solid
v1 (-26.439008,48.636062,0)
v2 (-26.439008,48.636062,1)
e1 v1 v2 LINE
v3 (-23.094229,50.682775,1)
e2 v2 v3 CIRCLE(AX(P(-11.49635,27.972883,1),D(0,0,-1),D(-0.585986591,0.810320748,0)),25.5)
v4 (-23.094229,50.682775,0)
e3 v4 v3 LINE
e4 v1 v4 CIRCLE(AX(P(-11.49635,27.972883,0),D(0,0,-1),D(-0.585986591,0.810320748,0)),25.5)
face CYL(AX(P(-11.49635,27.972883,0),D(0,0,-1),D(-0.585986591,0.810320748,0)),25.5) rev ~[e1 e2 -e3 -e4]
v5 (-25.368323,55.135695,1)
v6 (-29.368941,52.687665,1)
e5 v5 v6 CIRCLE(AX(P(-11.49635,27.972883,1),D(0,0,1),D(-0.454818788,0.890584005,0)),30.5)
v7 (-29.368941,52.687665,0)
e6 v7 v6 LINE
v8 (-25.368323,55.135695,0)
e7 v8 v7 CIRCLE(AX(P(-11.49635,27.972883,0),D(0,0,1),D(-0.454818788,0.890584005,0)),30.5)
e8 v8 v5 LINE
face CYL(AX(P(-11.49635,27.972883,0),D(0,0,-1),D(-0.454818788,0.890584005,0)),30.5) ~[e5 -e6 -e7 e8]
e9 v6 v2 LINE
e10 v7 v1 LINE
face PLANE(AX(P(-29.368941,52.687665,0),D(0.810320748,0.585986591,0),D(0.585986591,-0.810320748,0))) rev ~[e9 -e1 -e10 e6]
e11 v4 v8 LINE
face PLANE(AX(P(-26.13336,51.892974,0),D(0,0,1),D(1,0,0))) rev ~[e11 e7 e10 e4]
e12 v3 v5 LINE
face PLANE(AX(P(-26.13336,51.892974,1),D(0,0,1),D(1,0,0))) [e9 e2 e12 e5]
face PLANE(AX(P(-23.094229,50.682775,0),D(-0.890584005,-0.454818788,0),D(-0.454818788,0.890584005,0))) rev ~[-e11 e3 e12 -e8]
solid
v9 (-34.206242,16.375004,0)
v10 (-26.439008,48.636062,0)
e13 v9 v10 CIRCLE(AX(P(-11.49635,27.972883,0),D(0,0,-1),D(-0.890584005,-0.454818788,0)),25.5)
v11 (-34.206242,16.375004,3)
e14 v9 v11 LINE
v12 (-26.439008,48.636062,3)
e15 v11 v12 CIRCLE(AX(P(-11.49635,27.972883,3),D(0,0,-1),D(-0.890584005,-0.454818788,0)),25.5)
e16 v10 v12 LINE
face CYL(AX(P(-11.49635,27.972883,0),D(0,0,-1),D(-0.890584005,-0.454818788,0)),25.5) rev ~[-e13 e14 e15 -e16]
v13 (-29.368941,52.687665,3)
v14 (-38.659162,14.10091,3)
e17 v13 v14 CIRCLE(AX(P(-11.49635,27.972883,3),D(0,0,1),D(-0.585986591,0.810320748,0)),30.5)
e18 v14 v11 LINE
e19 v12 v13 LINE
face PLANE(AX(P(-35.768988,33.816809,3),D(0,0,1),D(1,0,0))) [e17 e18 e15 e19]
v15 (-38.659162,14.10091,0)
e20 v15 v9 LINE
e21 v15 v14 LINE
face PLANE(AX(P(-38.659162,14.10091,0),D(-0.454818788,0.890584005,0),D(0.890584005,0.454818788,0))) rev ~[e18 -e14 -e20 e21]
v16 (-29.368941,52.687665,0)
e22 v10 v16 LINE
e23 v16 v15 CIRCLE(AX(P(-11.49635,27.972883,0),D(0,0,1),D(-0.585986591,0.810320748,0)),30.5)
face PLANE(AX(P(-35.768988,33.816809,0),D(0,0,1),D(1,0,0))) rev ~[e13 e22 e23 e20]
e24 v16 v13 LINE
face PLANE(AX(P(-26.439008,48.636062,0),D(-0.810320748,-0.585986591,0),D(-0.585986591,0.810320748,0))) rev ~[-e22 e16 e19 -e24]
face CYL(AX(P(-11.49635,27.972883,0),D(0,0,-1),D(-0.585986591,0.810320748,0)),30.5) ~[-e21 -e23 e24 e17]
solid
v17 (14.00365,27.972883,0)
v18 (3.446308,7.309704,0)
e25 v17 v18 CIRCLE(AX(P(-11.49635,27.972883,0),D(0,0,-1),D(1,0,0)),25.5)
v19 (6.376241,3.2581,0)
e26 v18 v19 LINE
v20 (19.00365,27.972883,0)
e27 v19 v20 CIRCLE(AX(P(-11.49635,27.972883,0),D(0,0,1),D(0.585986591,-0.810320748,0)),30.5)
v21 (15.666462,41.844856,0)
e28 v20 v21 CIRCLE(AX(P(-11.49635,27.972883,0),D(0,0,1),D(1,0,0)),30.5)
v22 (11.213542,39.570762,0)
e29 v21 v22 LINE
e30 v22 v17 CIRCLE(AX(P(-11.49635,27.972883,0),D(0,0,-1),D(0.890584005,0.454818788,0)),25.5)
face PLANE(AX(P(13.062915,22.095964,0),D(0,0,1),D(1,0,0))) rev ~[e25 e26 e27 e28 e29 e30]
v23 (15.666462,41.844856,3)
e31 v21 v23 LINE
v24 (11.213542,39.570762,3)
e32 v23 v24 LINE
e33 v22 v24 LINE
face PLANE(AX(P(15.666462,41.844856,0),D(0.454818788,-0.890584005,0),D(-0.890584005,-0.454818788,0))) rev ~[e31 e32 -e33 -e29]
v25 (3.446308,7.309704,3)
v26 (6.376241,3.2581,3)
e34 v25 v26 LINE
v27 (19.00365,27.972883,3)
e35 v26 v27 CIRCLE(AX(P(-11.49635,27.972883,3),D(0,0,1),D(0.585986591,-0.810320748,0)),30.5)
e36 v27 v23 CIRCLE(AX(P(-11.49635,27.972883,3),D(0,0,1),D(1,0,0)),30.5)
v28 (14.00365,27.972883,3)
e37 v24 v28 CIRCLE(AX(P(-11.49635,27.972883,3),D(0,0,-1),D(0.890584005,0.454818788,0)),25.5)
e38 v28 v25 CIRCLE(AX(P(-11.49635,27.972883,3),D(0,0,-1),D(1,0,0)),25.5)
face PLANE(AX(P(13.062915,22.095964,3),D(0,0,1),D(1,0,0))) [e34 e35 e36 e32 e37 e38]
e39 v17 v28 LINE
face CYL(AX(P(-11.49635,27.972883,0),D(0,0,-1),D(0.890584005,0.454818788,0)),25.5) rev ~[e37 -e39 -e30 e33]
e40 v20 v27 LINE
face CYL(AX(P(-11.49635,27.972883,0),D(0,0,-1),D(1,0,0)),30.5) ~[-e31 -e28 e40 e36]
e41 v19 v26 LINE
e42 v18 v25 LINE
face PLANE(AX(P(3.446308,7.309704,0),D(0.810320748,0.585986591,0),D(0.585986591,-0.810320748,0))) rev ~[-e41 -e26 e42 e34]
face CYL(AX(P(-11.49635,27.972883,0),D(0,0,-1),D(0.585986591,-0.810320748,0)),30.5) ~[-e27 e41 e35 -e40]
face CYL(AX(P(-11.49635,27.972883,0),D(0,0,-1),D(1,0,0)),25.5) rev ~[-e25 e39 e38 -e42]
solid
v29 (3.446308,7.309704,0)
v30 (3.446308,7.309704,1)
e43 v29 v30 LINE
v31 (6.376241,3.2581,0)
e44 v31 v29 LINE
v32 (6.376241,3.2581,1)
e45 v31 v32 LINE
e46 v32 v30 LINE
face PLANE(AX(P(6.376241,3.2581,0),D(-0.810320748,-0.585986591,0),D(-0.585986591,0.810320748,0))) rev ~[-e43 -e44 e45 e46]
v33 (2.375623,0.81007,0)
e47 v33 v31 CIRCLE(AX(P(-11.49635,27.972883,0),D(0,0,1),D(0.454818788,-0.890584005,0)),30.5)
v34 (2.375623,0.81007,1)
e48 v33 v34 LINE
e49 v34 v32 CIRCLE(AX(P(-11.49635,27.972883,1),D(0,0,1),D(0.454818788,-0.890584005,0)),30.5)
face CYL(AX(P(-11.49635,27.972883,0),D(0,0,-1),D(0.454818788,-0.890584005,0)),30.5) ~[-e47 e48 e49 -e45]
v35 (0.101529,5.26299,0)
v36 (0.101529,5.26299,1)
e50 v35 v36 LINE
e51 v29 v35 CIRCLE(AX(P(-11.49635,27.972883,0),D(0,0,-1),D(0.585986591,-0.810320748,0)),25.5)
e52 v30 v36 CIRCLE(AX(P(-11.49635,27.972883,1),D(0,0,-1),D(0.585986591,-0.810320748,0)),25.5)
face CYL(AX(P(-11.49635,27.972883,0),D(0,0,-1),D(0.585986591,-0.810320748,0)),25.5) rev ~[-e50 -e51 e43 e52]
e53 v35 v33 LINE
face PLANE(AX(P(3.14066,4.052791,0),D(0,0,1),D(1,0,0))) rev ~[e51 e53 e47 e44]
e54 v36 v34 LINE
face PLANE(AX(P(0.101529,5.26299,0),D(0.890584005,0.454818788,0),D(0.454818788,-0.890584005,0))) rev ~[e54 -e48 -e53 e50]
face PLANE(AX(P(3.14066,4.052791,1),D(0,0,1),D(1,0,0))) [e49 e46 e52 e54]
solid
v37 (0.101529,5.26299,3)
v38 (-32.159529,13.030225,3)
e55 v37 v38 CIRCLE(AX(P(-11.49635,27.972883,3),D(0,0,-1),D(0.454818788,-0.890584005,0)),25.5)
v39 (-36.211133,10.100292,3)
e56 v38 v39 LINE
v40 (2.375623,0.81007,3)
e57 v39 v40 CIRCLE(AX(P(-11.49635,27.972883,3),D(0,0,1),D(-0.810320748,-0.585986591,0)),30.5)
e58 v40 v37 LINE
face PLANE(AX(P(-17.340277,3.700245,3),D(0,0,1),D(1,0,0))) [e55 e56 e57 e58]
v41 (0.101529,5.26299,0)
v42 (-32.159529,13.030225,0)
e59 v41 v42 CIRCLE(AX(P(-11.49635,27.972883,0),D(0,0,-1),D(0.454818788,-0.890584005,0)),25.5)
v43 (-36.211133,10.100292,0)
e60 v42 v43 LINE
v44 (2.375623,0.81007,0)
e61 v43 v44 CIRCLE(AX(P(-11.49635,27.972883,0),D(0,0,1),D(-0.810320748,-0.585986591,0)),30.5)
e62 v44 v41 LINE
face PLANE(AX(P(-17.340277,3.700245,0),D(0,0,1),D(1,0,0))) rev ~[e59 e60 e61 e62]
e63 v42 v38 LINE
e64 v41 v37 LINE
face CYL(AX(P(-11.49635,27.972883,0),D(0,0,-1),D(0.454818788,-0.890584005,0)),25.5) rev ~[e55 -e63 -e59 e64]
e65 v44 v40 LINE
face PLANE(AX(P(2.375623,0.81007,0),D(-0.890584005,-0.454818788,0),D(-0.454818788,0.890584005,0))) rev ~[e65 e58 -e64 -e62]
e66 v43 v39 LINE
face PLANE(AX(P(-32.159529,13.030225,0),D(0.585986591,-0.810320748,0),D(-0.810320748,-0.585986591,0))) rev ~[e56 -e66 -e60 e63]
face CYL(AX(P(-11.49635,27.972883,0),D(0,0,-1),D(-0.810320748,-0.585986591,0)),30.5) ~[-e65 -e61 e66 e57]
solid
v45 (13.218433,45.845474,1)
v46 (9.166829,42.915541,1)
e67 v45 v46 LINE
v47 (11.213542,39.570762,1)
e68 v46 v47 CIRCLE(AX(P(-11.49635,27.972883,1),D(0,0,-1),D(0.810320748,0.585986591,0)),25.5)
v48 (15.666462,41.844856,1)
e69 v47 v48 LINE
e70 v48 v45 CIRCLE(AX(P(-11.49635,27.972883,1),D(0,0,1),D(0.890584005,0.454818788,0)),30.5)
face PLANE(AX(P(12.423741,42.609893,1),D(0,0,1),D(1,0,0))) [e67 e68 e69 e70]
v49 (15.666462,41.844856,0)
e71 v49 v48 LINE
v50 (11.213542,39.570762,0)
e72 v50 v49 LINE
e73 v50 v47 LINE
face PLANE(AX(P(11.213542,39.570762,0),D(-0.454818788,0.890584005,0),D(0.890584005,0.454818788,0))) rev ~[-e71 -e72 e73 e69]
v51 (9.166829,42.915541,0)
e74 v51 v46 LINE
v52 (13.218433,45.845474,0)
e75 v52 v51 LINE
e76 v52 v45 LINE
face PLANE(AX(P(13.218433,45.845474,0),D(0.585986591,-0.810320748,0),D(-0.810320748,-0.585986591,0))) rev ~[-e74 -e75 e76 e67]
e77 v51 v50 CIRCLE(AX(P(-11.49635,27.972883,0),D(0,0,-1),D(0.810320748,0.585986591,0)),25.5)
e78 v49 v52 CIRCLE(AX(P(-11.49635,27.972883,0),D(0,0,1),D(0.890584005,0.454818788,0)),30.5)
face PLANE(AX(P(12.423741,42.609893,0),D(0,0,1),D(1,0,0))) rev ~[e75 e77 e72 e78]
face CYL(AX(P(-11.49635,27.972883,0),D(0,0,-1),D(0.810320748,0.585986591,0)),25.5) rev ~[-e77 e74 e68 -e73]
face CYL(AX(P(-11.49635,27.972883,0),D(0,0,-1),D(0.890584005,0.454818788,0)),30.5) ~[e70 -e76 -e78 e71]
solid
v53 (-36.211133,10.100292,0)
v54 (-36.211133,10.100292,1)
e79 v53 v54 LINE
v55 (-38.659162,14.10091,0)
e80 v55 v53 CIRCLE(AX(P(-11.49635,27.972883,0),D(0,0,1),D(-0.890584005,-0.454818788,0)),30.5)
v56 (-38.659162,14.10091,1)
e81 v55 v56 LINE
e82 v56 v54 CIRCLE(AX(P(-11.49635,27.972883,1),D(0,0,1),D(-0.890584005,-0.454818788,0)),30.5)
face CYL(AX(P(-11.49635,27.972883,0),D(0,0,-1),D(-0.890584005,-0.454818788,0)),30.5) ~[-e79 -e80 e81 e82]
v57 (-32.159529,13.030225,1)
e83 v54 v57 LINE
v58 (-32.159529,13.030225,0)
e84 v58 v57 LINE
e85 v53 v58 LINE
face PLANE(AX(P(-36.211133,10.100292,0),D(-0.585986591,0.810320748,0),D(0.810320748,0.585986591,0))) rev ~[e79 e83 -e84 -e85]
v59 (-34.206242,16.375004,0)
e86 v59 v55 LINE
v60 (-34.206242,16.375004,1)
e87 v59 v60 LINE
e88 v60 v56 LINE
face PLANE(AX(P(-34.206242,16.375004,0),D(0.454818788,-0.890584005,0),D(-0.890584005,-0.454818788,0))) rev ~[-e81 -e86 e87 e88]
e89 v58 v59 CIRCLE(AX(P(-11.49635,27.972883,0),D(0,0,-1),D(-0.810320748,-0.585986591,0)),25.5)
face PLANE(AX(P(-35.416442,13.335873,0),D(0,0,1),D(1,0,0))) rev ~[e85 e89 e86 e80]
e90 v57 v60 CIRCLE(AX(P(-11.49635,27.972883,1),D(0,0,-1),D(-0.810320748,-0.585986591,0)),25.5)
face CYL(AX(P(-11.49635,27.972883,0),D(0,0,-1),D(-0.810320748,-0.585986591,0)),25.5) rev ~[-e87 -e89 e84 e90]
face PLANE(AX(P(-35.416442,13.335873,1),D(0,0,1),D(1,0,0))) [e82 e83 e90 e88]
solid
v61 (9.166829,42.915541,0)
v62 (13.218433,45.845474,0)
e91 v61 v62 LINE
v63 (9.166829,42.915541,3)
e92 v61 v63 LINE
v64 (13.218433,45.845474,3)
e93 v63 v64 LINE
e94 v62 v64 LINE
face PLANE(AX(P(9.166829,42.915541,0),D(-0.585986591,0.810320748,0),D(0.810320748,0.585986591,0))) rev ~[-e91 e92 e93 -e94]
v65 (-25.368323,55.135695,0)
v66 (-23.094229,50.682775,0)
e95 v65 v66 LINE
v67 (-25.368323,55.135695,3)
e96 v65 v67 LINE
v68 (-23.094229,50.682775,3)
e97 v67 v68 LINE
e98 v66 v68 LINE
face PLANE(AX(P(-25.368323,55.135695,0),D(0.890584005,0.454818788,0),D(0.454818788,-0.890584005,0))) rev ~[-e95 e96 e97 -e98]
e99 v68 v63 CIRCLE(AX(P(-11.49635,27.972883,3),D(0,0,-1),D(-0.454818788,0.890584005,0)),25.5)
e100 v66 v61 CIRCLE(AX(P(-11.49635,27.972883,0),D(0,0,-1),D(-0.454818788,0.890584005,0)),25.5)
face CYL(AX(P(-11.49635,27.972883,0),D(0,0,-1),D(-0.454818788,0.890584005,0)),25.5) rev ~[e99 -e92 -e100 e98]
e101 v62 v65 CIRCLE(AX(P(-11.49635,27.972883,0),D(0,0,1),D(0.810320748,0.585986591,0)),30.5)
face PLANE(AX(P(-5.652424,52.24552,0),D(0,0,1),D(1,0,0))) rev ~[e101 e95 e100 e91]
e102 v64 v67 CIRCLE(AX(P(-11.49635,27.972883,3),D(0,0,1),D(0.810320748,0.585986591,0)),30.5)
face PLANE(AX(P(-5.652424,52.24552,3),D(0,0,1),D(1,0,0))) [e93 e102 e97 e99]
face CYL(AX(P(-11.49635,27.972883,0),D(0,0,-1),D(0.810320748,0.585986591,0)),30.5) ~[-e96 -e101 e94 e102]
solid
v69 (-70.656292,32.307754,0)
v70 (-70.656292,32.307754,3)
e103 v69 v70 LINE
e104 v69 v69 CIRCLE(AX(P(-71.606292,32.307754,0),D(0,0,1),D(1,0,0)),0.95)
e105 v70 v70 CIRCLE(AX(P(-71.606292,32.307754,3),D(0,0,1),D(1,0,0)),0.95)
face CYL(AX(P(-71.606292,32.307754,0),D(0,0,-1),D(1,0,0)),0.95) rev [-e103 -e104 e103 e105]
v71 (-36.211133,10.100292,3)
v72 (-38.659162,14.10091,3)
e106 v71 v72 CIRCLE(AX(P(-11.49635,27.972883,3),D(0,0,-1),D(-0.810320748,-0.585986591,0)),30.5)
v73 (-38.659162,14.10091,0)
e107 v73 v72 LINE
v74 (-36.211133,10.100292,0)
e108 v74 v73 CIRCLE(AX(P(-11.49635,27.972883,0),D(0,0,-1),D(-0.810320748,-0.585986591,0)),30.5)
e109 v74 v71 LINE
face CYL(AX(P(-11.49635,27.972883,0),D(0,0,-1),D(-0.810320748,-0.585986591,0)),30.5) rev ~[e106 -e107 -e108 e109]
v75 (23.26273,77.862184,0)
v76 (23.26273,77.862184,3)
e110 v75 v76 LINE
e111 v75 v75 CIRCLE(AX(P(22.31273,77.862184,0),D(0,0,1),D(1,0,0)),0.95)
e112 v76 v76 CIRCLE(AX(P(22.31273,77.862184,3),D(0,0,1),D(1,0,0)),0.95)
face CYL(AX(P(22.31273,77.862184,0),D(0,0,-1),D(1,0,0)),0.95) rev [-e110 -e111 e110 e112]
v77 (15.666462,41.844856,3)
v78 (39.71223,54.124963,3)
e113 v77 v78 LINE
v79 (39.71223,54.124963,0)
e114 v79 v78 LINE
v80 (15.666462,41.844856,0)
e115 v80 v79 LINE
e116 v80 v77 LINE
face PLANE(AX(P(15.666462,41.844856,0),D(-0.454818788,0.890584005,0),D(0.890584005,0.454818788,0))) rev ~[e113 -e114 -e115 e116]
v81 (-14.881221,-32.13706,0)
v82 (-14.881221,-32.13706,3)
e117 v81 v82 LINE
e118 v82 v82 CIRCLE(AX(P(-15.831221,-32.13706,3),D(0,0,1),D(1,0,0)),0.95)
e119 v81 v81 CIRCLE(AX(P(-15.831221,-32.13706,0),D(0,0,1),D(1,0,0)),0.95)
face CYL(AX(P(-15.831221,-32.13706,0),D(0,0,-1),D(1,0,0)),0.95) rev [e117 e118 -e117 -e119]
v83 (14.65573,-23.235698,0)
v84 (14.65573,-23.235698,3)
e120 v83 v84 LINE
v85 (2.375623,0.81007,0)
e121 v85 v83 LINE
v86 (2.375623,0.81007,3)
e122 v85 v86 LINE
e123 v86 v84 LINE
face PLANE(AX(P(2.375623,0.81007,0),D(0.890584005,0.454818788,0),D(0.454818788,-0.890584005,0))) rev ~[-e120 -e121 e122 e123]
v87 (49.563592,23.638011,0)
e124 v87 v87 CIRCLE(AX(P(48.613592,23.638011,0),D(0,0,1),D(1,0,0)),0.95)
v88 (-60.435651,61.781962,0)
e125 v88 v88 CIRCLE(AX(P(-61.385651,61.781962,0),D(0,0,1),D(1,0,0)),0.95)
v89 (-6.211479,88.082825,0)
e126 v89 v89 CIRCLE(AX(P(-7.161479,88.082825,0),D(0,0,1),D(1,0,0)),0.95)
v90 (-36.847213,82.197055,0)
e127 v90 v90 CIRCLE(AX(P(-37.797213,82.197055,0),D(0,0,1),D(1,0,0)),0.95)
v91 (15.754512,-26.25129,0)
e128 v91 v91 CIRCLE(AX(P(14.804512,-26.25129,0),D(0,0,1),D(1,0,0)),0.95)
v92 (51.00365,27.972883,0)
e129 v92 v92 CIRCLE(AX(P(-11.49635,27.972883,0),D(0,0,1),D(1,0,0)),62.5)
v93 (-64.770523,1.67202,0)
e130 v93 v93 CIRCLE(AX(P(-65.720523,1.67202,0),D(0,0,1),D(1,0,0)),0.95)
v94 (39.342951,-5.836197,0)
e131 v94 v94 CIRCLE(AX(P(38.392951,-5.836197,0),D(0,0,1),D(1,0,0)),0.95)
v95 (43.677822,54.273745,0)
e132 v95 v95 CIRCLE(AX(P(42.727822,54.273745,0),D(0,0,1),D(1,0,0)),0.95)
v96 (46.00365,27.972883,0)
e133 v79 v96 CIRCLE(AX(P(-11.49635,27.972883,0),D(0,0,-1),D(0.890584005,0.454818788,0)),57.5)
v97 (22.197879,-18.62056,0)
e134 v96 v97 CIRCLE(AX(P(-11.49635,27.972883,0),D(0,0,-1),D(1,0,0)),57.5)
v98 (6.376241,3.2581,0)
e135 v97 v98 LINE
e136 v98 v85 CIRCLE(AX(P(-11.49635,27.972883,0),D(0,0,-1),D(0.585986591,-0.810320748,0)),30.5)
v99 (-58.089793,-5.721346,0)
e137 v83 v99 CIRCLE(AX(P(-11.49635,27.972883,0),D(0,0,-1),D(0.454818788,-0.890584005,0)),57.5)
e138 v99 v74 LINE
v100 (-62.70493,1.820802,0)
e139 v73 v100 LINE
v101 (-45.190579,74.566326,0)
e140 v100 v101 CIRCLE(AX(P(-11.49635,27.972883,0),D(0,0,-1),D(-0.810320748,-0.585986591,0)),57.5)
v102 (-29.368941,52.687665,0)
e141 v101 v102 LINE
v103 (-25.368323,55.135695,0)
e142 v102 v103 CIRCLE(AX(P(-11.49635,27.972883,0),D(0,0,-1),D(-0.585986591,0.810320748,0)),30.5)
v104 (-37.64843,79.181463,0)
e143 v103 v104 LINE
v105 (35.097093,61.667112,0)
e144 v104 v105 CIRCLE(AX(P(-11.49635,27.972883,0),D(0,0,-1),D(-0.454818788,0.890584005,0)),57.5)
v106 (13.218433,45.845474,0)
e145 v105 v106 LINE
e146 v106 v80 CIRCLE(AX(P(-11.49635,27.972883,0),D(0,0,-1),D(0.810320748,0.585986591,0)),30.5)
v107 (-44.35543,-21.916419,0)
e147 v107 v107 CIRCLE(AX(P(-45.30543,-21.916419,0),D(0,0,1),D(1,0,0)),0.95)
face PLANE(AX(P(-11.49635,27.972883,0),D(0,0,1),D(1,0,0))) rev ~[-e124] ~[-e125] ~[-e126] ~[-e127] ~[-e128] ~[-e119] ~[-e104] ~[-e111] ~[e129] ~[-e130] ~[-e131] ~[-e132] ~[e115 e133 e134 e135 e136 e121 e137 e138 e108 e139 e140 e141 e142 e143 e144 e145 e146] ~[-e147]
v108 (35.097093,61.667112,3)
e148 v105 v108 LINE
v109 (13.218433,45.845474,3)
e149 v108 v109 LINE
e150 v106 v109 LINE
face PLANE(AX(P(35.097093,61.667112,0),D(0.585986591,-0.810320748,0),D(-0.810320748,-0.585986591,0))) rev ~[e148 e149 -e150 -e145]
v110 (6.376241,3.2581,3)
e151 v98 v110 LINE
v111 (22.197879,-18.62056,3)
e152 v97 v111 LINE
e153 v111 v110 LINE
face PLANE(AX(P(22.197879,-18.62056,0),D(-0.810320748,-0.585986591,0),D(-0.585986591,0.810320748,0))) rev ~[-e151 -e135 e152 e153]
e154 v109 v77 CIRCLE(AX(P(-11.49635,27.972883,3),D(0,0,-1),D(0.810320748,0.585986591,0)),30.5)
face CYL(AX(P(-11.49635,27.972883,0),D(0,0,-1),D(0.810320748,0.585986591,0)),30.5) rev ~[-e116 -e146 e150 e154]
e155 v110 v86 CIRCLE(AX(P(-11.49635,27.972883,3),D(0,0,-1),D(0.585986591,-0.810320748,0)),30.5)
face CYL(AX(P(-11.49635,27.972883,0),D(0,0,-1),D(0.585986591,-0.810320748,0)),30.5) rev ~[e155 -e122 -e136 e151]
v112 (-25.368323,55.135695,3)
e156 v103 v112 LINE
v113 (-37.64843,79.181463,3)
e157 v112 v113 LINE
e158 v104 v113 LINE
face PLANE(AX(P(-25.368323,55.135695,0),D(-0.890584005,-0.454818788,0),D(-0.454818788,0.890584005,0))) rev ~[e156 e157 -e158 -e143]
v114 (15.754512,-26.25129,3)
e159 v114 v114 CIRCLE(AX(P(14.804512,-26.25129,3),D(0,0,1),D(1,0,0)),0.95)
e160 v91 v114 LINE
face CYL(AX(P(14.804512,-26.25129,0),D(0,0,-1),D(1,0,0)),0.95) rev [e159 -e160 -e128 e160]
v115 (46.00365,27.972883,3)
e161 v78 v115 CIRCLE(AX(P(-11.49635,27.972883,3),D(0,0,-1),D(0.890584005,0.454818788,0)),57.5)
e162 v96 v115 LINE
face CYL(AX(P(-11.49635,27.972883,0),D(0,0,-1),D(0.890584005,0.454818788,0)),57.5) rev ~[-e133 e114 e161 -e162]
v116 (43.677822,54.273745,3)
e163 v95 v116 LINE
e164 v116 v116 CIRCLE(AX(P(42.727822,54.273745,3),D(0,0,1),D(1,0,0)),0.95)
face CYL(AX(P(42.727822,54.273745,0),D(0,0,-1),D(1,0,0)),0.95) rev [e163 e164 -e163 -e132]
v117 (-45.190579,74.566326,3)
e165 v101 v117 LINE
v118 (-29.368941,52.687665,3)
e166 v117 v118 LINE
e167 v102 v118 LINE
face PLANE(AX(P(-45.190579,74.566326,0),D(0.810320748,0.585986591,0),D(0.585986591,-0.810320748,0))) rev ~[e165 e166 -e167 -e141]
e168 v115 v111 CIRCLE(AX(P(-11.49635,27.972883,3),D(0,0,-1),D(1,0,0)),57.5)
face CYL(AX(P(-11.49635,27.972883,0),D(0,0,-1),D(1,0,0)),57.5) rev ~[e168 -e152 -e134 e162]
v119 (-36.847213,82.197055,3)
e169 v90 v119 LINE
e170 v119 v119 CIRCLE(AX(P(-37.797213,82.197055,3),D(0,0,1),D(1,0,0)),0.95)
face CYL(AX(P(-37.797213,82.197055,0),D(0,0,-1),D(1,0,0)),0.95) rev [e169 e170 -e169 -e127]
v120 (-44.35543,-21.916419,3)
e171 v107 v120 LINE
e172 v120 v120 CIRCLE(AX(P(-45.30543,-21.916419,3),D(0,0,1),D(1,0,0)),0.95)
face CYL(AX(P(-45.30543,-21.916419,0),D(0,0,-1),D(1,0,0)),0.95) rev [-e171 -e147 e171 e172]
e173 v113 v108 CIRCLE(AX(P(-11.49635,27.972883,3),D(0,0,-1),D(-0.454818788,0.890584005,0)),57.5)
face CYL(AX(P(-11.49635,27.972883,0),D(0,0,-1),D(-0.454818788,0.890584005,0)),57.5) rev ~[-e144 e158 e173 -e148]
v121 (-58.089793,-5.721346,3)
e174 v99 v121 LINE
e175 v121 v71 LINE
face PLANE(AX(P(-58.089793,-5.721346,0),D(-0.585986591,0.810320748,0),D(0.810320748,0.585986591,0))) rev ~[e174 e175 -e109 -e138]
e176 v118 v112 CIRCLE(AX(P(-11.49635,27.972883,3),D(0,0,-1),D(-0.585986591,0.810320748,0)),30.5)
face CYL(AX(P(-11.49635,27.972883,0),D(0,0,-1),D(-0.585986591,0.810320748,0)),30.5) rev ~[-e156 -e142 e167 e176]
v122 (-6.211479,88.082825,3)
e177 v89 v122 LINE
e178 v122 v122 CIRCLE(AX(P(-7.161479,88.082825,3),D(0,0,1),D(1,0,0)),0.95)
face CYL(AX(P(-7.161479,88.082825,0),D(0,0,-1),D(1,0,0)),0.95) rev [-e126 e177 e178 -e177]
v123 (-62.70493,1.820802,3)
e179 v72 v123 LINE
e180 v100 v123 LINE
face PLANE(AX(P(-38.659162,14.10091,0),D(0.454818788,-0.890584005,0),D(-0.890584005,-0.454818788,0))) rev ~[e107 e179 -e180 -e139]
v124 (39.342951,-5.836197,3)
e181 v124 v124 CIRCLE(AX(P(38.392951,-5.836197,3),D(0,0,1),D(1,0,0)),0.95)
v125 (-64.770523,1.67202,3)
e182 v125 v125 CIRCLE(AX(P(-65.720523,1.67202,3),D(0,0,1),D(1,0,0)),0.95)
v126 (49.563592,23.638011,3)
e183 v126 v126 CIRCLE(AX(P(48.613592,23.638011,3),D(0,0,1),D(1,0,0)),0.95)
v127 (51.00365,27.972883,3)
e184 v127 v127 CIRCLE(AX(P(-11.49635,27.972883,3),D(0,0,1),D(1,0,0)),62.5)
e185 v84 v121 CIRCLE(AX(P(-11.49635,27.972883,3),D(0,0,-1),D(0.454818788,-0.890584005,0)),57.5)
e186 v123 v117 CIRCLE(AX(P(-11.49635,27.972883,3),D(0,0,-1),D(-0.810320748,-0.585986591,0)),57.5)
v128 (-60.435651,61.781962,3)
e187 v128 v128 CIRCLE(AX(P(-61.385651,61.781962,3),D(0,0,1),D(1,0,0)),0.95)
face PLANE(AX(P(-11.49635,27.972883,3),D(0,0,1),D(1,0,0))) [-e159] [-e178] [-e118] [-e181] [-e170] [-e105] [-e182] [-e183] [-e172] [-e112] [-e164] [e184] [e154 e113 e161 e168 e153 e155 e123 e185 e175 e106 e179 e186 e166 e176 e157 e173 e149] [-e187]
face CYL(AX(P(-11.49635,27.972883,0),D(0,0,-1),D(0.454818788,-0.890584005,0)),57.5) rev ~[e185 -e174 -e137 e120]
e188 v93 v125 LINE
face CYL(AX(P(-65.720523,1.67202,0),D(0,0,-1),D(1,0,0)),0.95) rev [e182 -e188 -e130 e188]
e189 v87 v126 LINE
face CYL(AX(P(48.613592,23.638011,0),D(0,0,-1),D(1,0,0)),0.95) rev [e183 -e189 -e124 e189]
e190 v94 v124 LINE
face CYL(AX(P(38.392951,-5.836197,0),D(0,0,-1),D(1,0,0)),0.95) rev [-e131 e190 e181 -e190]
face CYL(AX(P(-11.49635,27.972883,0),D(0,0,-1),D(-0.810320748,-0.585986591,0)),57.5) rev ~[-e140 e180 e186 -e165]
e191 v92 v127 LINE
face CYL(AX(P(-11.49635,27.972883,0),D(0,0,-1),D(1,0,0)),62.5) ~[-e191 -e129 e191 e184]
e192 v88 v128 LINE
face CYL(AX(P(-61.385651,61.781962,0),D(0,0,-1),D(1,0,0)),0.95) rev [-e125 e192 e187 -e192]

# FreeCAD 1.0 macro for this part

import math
import FreeCAD as App
import Part
import Sketcher
Q = App.Units.Quantity

doc = App.newDocument("Part")
body = doc.addObject("PartDesign::Body", "Body")

# Sketch on XY plane
sketch1 = body.newObject("Sketcher::SketchObject", "Sketch")
sketch1.AttachmentSupport = (doc.getObject("XY_Plane"), [""])
sketch1.MapMode = "FlatFace"
sketch1.addGeometry([
    Part.Circle(App.Vector(-11.49635, 27.972883, 0), App.Vector(0, 0, 1), 62.5),  # 0
    Part.Circle(App.Vector(-45.30543, -21.916419, 0), App.Vector(0, 0, 1), 0.95),  # 1
    Part.Circle(App.Vector(-15.831221, -32.13706, 0), App.Vector(0, 0, 1), 0.95),  # 2
    Part.Circle(App.Vector(-65.720523, 1.67202, 0), App.Vector(0, 0, 1), 0.95),  # 3
    Part.Circle(App.Vector(14.804512, -26.25129, 0), App.Vector(0, 0, 1), 0.95),  # 4
    Part.Circle(App.Vector(38.392951, -5.836197, 0), App.Vector(0, 0, 1), 0.95),  # 5
    Part.ArcOfCircle(Part.Circle(App.Vector(-11.49635, 27.972883, 0), App.Vector(0, 0, 1), 57.5), math.radians(35.872719), math.radians(117.053275)),  # 6
    Part.LineSegment(App.Vector(35.097093, 61.667112, 0), App.Vector(13.218433, 45.845474, 0)),  # 7
    Part.ArcOfCircle(Part.Circle(App.Vector(-11.49635, 27.972883, 0), App.Vector(0, 0, 1), 30.5), math.radians(27.053275), math.radians(35.872719)),  # 8
    Part.LineSegment(App.Vector(15.666462, 41.844856, 0), App.Vector(39.71223, 54.124963, 0)),  # 9
    Part.ArcOfCircle(Part.Circle(App.Vector(-11.49635, 27.972883, 0), App.Vector(0, 0, 1), 57.5), math.radians(0), math.radians(27.053275)),  # 10
    Part.ArcOfCircle(Part.Circle(App.Vector(-11.49635, 27.972883, 0), App.Vector(0, 0, 1), 57.5), math.radians(-54.127281), math.radians(0)),  # 11
    Part.LineSegment(App.Vector(22.197879, -18.62056, 0), App.Vector(6.376241, 3.2581, 0)),  # 12
    Part.ArcOfCircle(Part.Circle(App.Vector(-11.49635, 27.972883, 0), App.Vector(0, 0, 1), 30.5), math.radians(-62.946725), math.radians(-54.127281)),  # 13
    Part.LineSegment(App.Vector(2.375623, 0.81007, 0), App.Vector(14.65573, -23.235698, 0)),  # 14
    Part.ArcOfCircle(Part.Circle(App.Vector(-11.49635, 27.972883, 0), App.Vector(0, 0, 1), 57.5), math.radians(-144.127281), math.radians(-62.946725)),  # 15
    Part.LineSegment(App.Vector(-58.089793, -5.721346, 0), App.Vector(-36.211133, 10.100292, 0)),  # 16
    Part.ArcOfCircle(Part.Circle(App.Vector(-11.49635, 27.972883, 0), App.Vector(0, 0, 1), 30.5), math.radians(-152.946725), math.radians(-144.127281)),  # 17
    Part.LineSegment(App.Vector(-38.659162, 14.10091, 0), App.Vector(-62.70493, 1.820802, 0)),  # 18
    Part.ArcOfCircle(Part.Circle(App.Vector(-11.49635, 27.972883, 0), App.Vector(0, 0, 1), 57.5), math.radians(125.872719), math.radians(207.053275)),  # 19
    Part.LineSegment(App.Vector(-45.190579, 74.566326, 0), App.Vector(-29.368941, 52.687665, 0)),  # 20
    Part.ArcOfCircle(Part.Circle(App.Vector(-11.49635, 27.972883, 0), App.Vector(0, 0, 1), 30.5), math.radians(117.053275), math.radians(125.872719)),  # 21
    Part.LineSegment(App.Vector(-25.368323, 55.135695, 0), App.Vector(-37.64843, 79.181463, 0)),  # 22
    Part.Circle(App.Vector(48.613592, 23.638011, 0), App.Vector(0, 0, 1), 0.95),  # 23
    Part.Circle(App.Vector(-71.606292, 32.307754, 0), App.Vector(0, 0, 1), 0.95),  # 24
    Part.Circle(App.Vector(-61.385651, 61.781962, 0), App.Vector(0, 0, 1), 0.95),  # 25
    Part.Circle(App.Vector(-37.797213, 82.197055, 0), App.Vector(0, 0, 1), 0.95),  # 26
    Part.Circle(App.Vector(42.727822, 54.273745, 0), App.Vector(0, 0, 1), 0.95),  # 27
    Part.Circle(App.Vector(-7.161479, 88.082825, 0), App.Vector(0, 0, 1), 0.95),  # 28
    Part.Circle(App.Vector(22.31273, 77.862184, 0), App.Vector(0, 0, 1), 0.95),  # 29
], False)
sketch1.addConstraint([
    Sketcher.Constraint("Coincident", 6, 1, 7, 1),
    Sketcher.Constraint("Coincident", 7, 2, 8, 2),
    Sketcher.Constraint("Coincident", 8, 1, 9, 1),
    Sketcher.Constraint("Coincident", 9, 2, 10, 2),
    Sketcher.Constraint("Tangent", 10, 1, 11, 2),
    Sketcher.Constraint("Coincident", 11, 1, 12, 1),
    Sketcher.Constraint("Coincident", 12, 2, 13, 2),
    Sketcher.Constraint("Coincident", 13, 1, 14, 1),
    Sketcher.Constraint("Coincident", 14, 2, 15, 2),
    Sketcher.Constraint("Coincident", 15, 1, 16, 1),
    Sketcher.Constraint("Coincident", 16, 2, 17, 2),
    Sketcher.Constraint("Coincident", 17, 1, 18, 1),
    Sketcher.Constraint("Coincident", 18, 2, 19, 2),
    Sketcher.Constraint("Coincident", 19, 1, 20, 1),
    Sketcher.Constraint("Coincident", 20, 2, 21, 2),
    Sketcher.Constraint("Coincident", 21, 1, 22, 1),
    Sketcher.Constraint("Coincident", 22, 2, 6, 2),
    Sketcher.Constraint("Coincident", 6, 3, 0, 3),
    Sketcher.Constraint("Coincident", 8, 3, 0, 3),
    Sketcher.Constraint("Coincident", 10, 3, 0, 3),
    Sketcher.Constraint("Coincident", 13, 3, 0, 3),
    Sketcher.Constraint("Coincident", 15, 3, 0, 3),
    Sketcher.Constraint("Coincident", 17, 3, 0, 3),
    Sketcher.Constraint("Coincident", 19, 3, 0, 3),
    Sketcher.Constraint("Coincident", 21, 3, 0, 3),
    Sketcher.Constraint("Equal", 1, 2),
    Sketcher.Constraint("Equal", 2, 3),
    Sketcher.Constraint("Equal", 3, 4),
    Sketcher.Constraint("Equal", 4, 5),
    Sketcher.Constraint("Equal", 6, 10),
    Sketcher.Constraint("Equal", 10, 11),
    Sketcher.Constraint("Equal", 8, 13),
    Sketcher.Constraint("Equal", 11, 15),
    Sketcher.Constraint("Equal", 13, 17),
    Sketcher.Constraint("Equal", 15, 19),
    Sketcher.Constraint("Equal", 17, 21),
    Sketcher.Constraint("Equal", 5, 23),
    Sketcher.Constraint("Equal", 23, 24),
    Sketcher.Constraint("Equal", 24, 25),
    Sketcher.Constraint("Equal", 25, 26),
    Sketcher.Constraint("Equal", 26, 27),
    Sketcher.Constraint("Equal", 27, 28),
    Sketcher.Constraint("Equal", 28, 29),
    Sketcher.Constraint("Perpendicular", 7, 12),
    Sketcher.Constraint("Perpendicular", 9, 14),
    Sketcher.Constraint("Perpendicular", 12, 16),
    Sketcher.Constraint("Perpendicular", 14, 18),
    Sketcher.Constraint("Perpendicular", 16, 20),
    Sketcher.Constraint("Perpendicular", 18, 22),
    Sketcher.Constraint("Horizontal", 21, 3, 10, 1),
    Sketcher.Constraint("Diameter", 0, Q("125 mm")),
    Sketcher.Constraint("Diameter", 1, Q("1.9 mm")),
    Sketcher.Constraint("Radius", 6, Q("57.5 mm")),
    Sketcher.Constraint("Radius", 8, Q("30.5 mm")),
    Sketcher.Constraint("DistanceY", -1, 1, 12, 2, Q("3.2581 mm")),
    Sketcher.Constraint("DistanceY", 1, 3, 0, 3, Q("49.889301 mm")),
    Sketcher.Constraint("DistanceX", 3, 3, 2, 3, Q("49.889301 mm")),
    Sketcher.Constraint("DistanceX", 0, 3, 5, 3, Q("49.889301 mm")),
    Sketcher.Constraint("DistanceY", 4, 3, 23, 3, Q("49.889301 mm")),
    Sketcher.Constraint("DistanceX", 25, 3, 13, 3, Q("49.889301 mm")),
    Sketcher.Constraint("DistanceY", 13, 3, 29, 3, Q("49.889301 mm")),
    Sketcher.Constraint("DistanceX", 6, 1, 23, 3, Q("13.516499 mm")),
    Sketcher.Constraint("DistanceY", 23, 3, 6, 1, Q("38.0291 mm")),
    Sketcher.Constraint("DistanceX", 29, 3, 9, 2, Q("17.399501 mm")),
    Sketcher.Constraint("DistanceX", 2, 3, 11, 1, Q("38.0291 mm")),
    Sketcher.Constraint("DistanceY", 2, 3, 11, 1, Q("13.516499 mm")),
    Sketcher.Constraint("DistanceY", 14, 2, 5, 3, Q("17.399501 mm")),
    Sketcher.Constraint("DistanceX", 24, 3, 15, 1, Q("13.516499 mm")),
    Sketcher.Constraint("DistanceY", 15, 1, 24, 3, Q("38.0291 mm")),
    Sketcher.Constraint("DistanceX", 18, 2, 1, 3, Q("17.399501 mm")),
    Sketcher.Constraint("DistanceX", 19, 1, 28, 3, Q("38.0291 mm")),
    Sketcher.Constraint("DistanceY", 19, 1, 28, 3, Q("13.516499 mm")),
    Sketcher.Constraint("DistanceY", 25, 3, 22, 2, Q("17.399501 mm")),
    Sketcher.Constraint("DistanceX", 0, 3, -1, 1, Q("11.49635 mm")),
    Sketcher.Constraint("DistanceX", 1, 3, -1, 1, Q("45.30543 mm")),
    Sketcher.Constraint("DistanceY", 1, 3, -1, 1, Q("21.916419 mm")),
    Sketcher.Constraint("DistanceX", 2, 3, -1, 1, Q("15.831221 mm")),
    Sketcher.Constraint("DistanceY", -1, 1, 3, 3, Q("1.67202 mm")),
    Sketcher.Constraint("DistanceY", 4, 3, -1, 1, Q("26.25129 mm")),
    Sketcher.Constraint("DistanceX", 28, 3, -1, 1, Q("7.161479 mm")),
    Sketcher.Constraint("DistanceX", -1, 1, 29, 3, Q("22.31273 mm")),
    Sketcher.Constraint("DistanceX", -1, 1, 8, 1, Q("15.666462 mm")),
    Sketcher.Constraint("DistanceY", -1, 1, 13, 1, Q("0.81007 mm")),
    Sketcher.Constraint("DistanceY", -1, 1, 16, 2, Q("10.100292 mm")),
    Sketcher.Constraint("DistanceX", 22, 2, -1, 1, Q("37.64843 mm")),
    Sketcher.Constraint("DistanceX", 4, 3, 5, 3, Q("23.588439 mm")),
    Sketcher.Constraint("DistanceX", 25, 3, 26, 3, Q("23.588439 mm")),
    Sketcher.Constraint("DistanceX", 27, 3, 23, 3, Q("5.88577 mm")),
    Sketcher.Constraint("DistanceY", 26, 3, 28, 3, Q("5.88577 mm")),
    Sketcher.Constraint("DistanceY", 27, 3, 29, 3, Q("23.588439 mm")),
])
pad1 = body.newObject("PartDesign::Pad", "Pad")
pad1.Profile = sketch1
pad1.Length = 3
body2 = doc.addObject("PartDesign::Body", "Body001")

# Sketch on XY plane
sketch2 = body2.newObject("Sketcher::SketchObject", "Sketch001")
sketch2.AttachmentSupport = (doc.getObject("XY_Plane001"), [""])
sketch2.MapMode = "FlatFace"
sketch2.addGeometry([
    Part.ArcOfCircle(Part.Circle(App.Vector(-11.49635, 27.972883, 0), App.Vector(0, 0, 1), 25.5), math.radians(35.872719), math.radians(117.053275)),
    Part.LineSegment(App.Vector(9.166829, 42.915541, 0), App.Vector(13.218433, 45.845474, 0)),
    Part.ArcOfCircle(Part.Circle(App.Vector(-11.49635, 27.972883, 0), App.Vector(0, 0, 1), 30.5), math.radians(35.872719), math.radians(117.053275)),
    Part.LineSegment(App.Vector(-25.368323, 55.135695, 0), App.Vector(-23.094229, 50.682775, 0)),
], False)
sketch2.addConstraint([
    Sketcher.Constraint("Coincident", 0, 1, 1, 1),
    Sketcher.Constraint("Coincident", 1, 2, 2, 1),
    Sketcher.Constraint("Coincident", 2, 2, 3, 1),
    Sketcher.Constraint("Coincident", 3, 2, 0, 2),
    Sketcher.Constraint("Coincident", 2, 3, 0, 3),
    Sketcher.Constraint("Radius", 0, Q("25.5 mm")),
    Sketcher.Constraint("Radius", 2, Q("30.5 mm")),
    Sketcher.Constraint("DistanceY", 1, 2, 3, 2, Q("4.837301 mm")),
    Sketcher.Constraint("DistanceX", 0, 3, -1, 1, Q("11.49635 mm")),
    Sketcher.Constraint("DistanceX", -1, 1, 0, 1, Q("9.166829 mm")),
    Sketcher.Constraint("DistanceY", -1, 1, 0, 1, Q("42.915541 mm")),
    Sketcher.Constraint("DistanceX", 3, 2, -1, 1, Q("23.094229 mm")),
    Sketcher.Constraint("DistanceY", 1, 2, 2, 2, Q("9.290221 mm")),
])
pad2 = body2.newObject("PartDesign::Pad", "Pad001")
pad2.Profile = sketch2
pad2.Length = 3
body3 = doc.addObject("PartDesign::Body", "Body002")

# Sketch on XY plane
sketch3 = body3.newObject("Sketcher::SketchObject", "Sketch002")
sketch3.AttachmentSupport = (doc.getObject("XY_Plane002"), [""])
sketch3.MapMode = "FlatFace"
sketch3.addGeometry([
    Part.ArcOfCircle(Part.Circle(App.Vector(-11.49635, 27.972883, 0), App.Vector(0, 0, 1), 25.5), math.radians(125.872719), math.radians(207.053275)),
    Part.LineSegment(App.Vector(-26.439008, 48.636062, 0), App.Vector(-29.368941, 52.687665, 0)),
    Part.ArcOfCircle(Part.Circle(App.Vector(-11.49635, 27.972883, 0), App.Vector(0, 0, 1), 30.5), math.radians(125.872719), math.radians(207.053275)),
    Part.LineSegment(App.Vector(-38.659162, 14.10091, 0), App.Vector(-34.206242, 16.375004, 0)),
], False)
sketch3.addConstraint([
    Sketcher.Constraint("Coincident", 0, 1, 1, 1),
    Sketcher.Constraint("Coincident", 1, 2, 2, 1),
    Sketcher.Constraint("Coincident", 2, 2, 3, 1),
    Sketcher.Constraint("Coincident", 3, 2, 0, 2),
    Sketcher.Constraint("Coincident", 2, 3, 0, 3),
    Sketcher.Constraint("Radius", 0, Q("25.5 mm")),
    Sketcher.Constraint("Radius", 2, Q("30.5 mm")),
    Sketcher.Constraint("DistanceX", 3, 2, 1, 2, Q("4.837301 mm")),
    Sketcher.Constraint("DistanceX", 0, 3, -1, 1, Q("11.49635 mm")),
    Sketcher.Constraint("DistanceX", 0, 1, -1, 1, Q("26.439008 mm")),
    Sketcher.Constraint("DistanceY", -1, 1, 0, 1, Q("48.636062 mm")),
    Sketcher.Constraint("DistanceX", 1, 2, -1, 1, Q("29.368941 mm")),
    Sketcher.Constraint("DistanceY", -1, 1, 2, 2, Q("14.10091 mm")),
])
pad3 = body3.newObject("PartDesign::Pad", "Pad002")
pad3.Profile = sketch3
pad3.Length = 3
body4 = doc.addObject("PartDesign::Body", "Body003")

# Sketch on XY plane
sketch4 = body4.newObject("Sketcher::SketchObject", "Sketch003")
sketch4.AttachmentSupport = (doc.getObject("XY_Plane003"), [""])
sketch4.MapMode = "FlatFace"
sketch4.addGeometry([
    Part.LineSegment(App.Vector(2.375623, 0.81007, 0), App.Vector(0.101529, 5.26299, 0)),
    Part.ArcOfCircle(Part.Circle(App.Vector(-11.49635, 27.972883, 0), App.Vector(0, 0, 1), 25.5), math.radians(-144.127281), math.radians(-62.946725)),
    Part.LineSegment(App.Vector(-32.159529, 13.030225, 0), App.Vector(-36.211133, 10.100292, 0)),
    Part.ArcOfCircle(Part.Circle(App.Vector(-11.49635, 27.972883, 0), App.Vector(0, 0, 1), 30.5), math.radians(-144.127281), math.radians(-62.946725)),
], False)
sketch4.addConstraint([
    Sketcher.Constraint("Coincident", 0, 2, 1, 2),
    Sketcher.Constraint("Coincident", 1, 1, 2, 1),
    Sketcher.Constraint("Coincident", 2, 2, 3, 1),
    Sketcher.Constraint("Coincident", 3, 2, 0, 1),
    Sketcher.Constraint("Coincident", 3, 3, 1, 3),
    Sketcher.Constraint("Radius", 1, Q("25.5 mm")),
    Sketcher.Constraint("Radius", 3, Q("30.5 mm")),
    Sketcher.Constraint("DistanceY", 0, 2, 2, 2, Q("4.837301 mm")),
    Sketcher.Constraint("DistanceX", 1, 3, -1, 1, Q("11.49635 mm")),
    Sketcher.Constraint("DistanceX", -1, 1, 0, 2, Q("0.101529 mm")),
    Sketcher.Constraint("DistanceY", -1, 1, 0, 2, Q("5.26299 mm")),
    Sketcher.Constraint("DistanceX", 1, 1, -1, 1, Q("32.159529 mm")),
    Sketcher.Constraint("DistanceY", -1, 1, 3, 2, Q("0.81007 mm")),
])
pad4 = body4.newObject("PartDesign::Pad", "Pad003")
pad4.Profile = sketch4
pad4.Length = 3
body5 = doc.addObject("PartDesign::Body", "Body004")

# Sketch on XY plane
sketch5 = body5.newObject("Sketcher::SketchObject", "Sketch004")
sketch5.AttachmentSupport = (doc.getObject("XY_Plane004"), [""])
sketch5.MapMode = "FlatFace"
sketch5.addGeometry([
    Part.ArcOfCircle(Part.Circle(App.Vector(-11.49635, 27.972883, 0), App.Vector(0, 0, 1), 25.5), math.radians(0), math.radians(27.053275)),  # 0
    Part.ArcOfCircle(Part.Circle(App.Vector(-11.49635, 27.972883, 0), App.Vector(0, 0, 1), 25.5), math.radians(-54.127281), math.radians(0)),  # 1
    Part.LineSegment(App.Vector(3.446308, 7.309704, 0), App.Vector(6.376241, 3.2581, 0)),  # 2
    Part.ArcOfCircle(Part.Circle(App.Vector(-11.49635, 27.972883, 0), App.Vector(0, 0, 1), 30.5), math.radians(-54.127281), math.radians(0)),  # 3
    Part.ArcOfCircle(Part.Circle(App.Vector(-11.49635, 27.972883, 0), App.Vector(0, 0, 1), 30.5), math.radians(0), math.radians(27.053275)),  # 4
    Part.LineSegment(App.Vector(15.666462, 41.844856, 0), App.Vector(11.213542, 39.570762, 0)),  # 5
], False)
sketch5.addConstraint([
    Sketcher.Constraint("Tangent", 0, 1, 1, 2),
    Sketcher.Constraint("Coincident", 1, 1, 2, 1),
    Sketcher.Constraint("Coincident", 2, 2, 3, 1),
    Sketcher.Constraint("Tangent", 3, 2, 4, 1),
    Sketcher.Constraint("Coincident", 4, 2, 5, 1),
    Sketcher.Constraint("Coincident", 5, 2, 0, 2),
    Sketcher.Constraint("Coincident", 3, 3, 0, 3),
    Sketcher.Constraint("Equal", 0, 1),
    Sketcher.Constraint("Equal", 3, 4),
    Sketcher.Constraint("Horizontal", 4, 3, 0, 1),
    Sketcher.Constraint("Horizontal", 0, 1, 3, 2),
    Sketcher.Constraint("Radius", 0, Q("25.5 mm")),
    Sketcher.Constraint("Radius", 3, Q("30.5 mm")),
    Sketcher.Constraint("DistanceY", -1, 1, 2, 2, Q("3.2581 mm")),
    Sketcher.Constraint("DistanceX", 0, 3, -1, 1, Q("11.49635 mm")),
    Sketcher.Constraint("DistanceX", -1, 1, 2, 2, Q("6.376241 mm")),
    Sketcher.Constraint("DistanceX", -1, 1, 4, 2, Q("15.666462 mm")),
    Sketcher.Constraint("DistanceX", -1, 1, 5, 2, Q("11.213542 mm")),
    Sketcher.Constraint("DistanceX", 1, 1, 0, 1, Q("10.557342 mm")),
])
pad5 = body5.newObject("PartDesign::Pad", "Pad004")
pad5.Profile = sketch5
pad5.Length = 3
body6 = doc.addObject("PartDesign::Body", "Body005")

# Sketch on XY plane
sketch6 = body6.newObject("Sketcher::SketchObject", "Sketch005")
sketch6.AttachmentSupport = (doc.getObject("XY_Plane005"), [""])
sketch6.MapMode = "FlatFace"
sketch6.addGeometry([
    Part.ArcOfCircle(Part.Circle(App.Vector(-11.49635, 27.972883, 0), App.Vector(0, 0, 1), 25.5), math.radians(117.053275), math.radians(125.872719)),
    Part.LineSegment(App.Vector(-23.094229, 50.682775, 0), App.Vector(-25.368323, 55.135695, 0)),
    Part.ArcOfCircle(Part.Circle(App.Vector(-11.49635, 27.972883, 0), App.Vector(0, 0, 1), 30.5), math.radians(117.053275), math.radians(125.872719)),
    Part.LineSegment(App.Vector(-29.368941, 52.687665, 0), App.Vector(-26.439008, 48.636062, 0)),
], False)
sketch6.addConstraint([
    Sketcher.Constraint("Coincident", 0, 1, 1, 1),
    Sketcher.Constraint("Coincident", 1, 2, 2, 1),
    Sketcher.Constraint("Coincident", 2, 2, 3, 1),
    Sketcher.Constraint("Coincident", 3, 2, 0, 2),
    Sketcher.Constraint("Coincident", 2, 3, 0, 3),
    Sketcher.Constraint("Radius", 0, Q("25.5 mm")),
    Sketcher.Constraint("Radius", 2, Q("30.5 mm")),
    Sketcher.Constraint("DistanceX", 0, 3, -1, 1, Q("11.49635 mm")),
    Sketcher.Constraint("DistanceX", 0, 1, -1, 1, Q("23.094229 mm")),
    Sketcher.Constraint("DistanceX", 2, 2, -1, 1, Q("29.368941 mm")),
    Sketcher.Constraint("DistanceX", 3, 2, -1, 1, Q("26.439008 mm")),
    Sketcher.Constraint("DistanceY", -1, 1, 3, 2, Q("48.636062 mm")),
    Sketcher.Constraint("DistanceY", 0, 1, 1, 2, Q("4.45292 mm")),
])
pad6 = body6.newObject("PartDesign::Pad", "Pad005")
pad6.Profile = sketch6
pad6.Length = 1
body7 = doc.addObject("PartDesign::Body", "Body006")

# Sketch on XY plane
sketch7 = body7.newObject("Sketcher::SketchObject", "Sketch006")
sketch7.AttachmentSupport = (doc.getObject("XY_Plane006"), [""])
sketch7.MapMode = "FlatFace"
sketch7.addGeometry([
    Part.LineSegment(App.Vector(-36.211133, 10.100292, 0), App.Vector(-32.159529, 13.030225, 0)),
    Part.ArcOfCircle(Part.Circle(App.Vector(-11.49635, 27.972883, 0), App.Vector(0, 0, 1), 25.5), math.radians(-152.946725), math.radians(-144.127281)),
    Part.LineSegment(App.Vector(-34.206242, 16.375004, 0), App.Vector(-38.659162, 14.10091, 0)),
    Part.ArcOfCircle(Part.Circle(App.Vector(-11.49635, 27.972883, 0), App.Vector(0, 0, 1), 30.5), math.radians(-152.946725), math.radians(-144.127281)),
], False)
sketch7.addConstraint([
    Sketcher.Constraint("Coincident", 0, 2, 1, 2),
    Sketcher.Constraint("Coincident", 1, 1, 2, 1),
    Sketcher.Constraint("Coincident", 2, 2, 3, 1),
    Sketcher.Constraint("Coincident", 3, 2, 0, 1),
    Sketcher.Constraint("Coincident", 3, 3, 1, 3),
    Sketcher.Constraint("Radius", 1, Q("25.5 mm")),
    Sketcher.Constraint("Radius", 3, Q("30.5 mm")),
    Sketcher.Constraint("DistanceX", 1, 3, -1, 1, Q("11.49635 mm")),
    Sketcher.Constraint("DistanceX", 0, 2, -1, 1, Q("32.159529 mm")),
    Sketcher.Constraint("DistanceY", -1, 1, 2, 2, Q("14.10091 mm")),
    Sketcher.Constraint("DistanceY", -1, 1, 3, 2, Q("10.100292 mm")),
    Sketcher.Constraint("DistanceY", 0, 2, 1, 1, Q("3.344779 mm")),
    Sketcher.Constraint("DistanceX", 2, 2, 1, 1, Q("4.45292 mm")),
])
pad7 = body7.newObject("PartDesign::Pad", "Pad006")
pad7.Profile = sketch7
pad7.Length = 1
body8 = doc.addObject("PartDesign::Body", "Body007")

# Sketch on XY plane
sketch8 = body8.newObject("Sketcher::SketchObject", "Sketch007")
sketch8.AttachmentSupport = (doc.getObject("XY_Plane007"), [""])
sketch8.MapMode = "FlatFace"
sketch8.addGeometry([
    Part.LineSegment(App.Vector(6.376241, 3.2581, 0), App.Vector(3.446308, 7.309704, 0)),
    Part.ArcOfCircle(Part.Circle(App.Vector(-11.49635, 27.972883, 0), App.Vector(0, 0, 1), 25.5), math.radians(-62.946725), math.radians(-54.127281)),
    Part.LineSegment(App.Vector(0.101529, 5.26299, 0), App.Vector(2.375623, 0.81007, 0)),
    Part.ArcOfCircle(Part.Circle(App.Vector(-11.49635, 27.972883, 0), App.Vector(0, 0, 1), 30.5), math.radians(-62.946725), math.radians(-54.127281)),
], False)
sketch8.addConstraint([
    Sketcher.Constraint("Coincident", 0, 2, 1, 2),
    Sketcher.Constraint("Coincident", 1, 1, 2, 1),
    Sketcher.Constraint("Coincident", 2, 2, 3, 1),
    Sketcher.Constraint("Coincident", 3, 2, 0, 1),
    Sketcher.Constraint("Coincident", 3, 3, 1, 3),
    Sketcher.Constraint("Radius", 1, Q("25.5 mm")),
    Sketcher.Constraint("Radius", 3, Q("30.5 mm")),
    Sketcher.Constraint("DistanceY", -1, 1, 3, 2, Q("3.2581 mm")),
    Sketcher.Constraint("DistanceX", 1, 3, -1, 1, Q("11.49635 mm")),
    Sketcher.Constraint("DistanceX", -1, 1, 1, 1, Q("0.101529 mm")),
    Sketcher.Constraint("DistanceY", -1, 1, 1, 1, Q("5.26299 mm")),
    Sketcher.Constraint("DistanceY", -1, 1, 2, 2, Q("0.81007 mm")),
    Sketcher.Constraint("DistanceX", 1, 3, 0, 2, Q("14.942658 mm")),
])
pad8 = body8.newObject("PartDesign::Pad", "Pad007")
pad8.Profile = sketch8
pad8.Length = 1
body9 = doc.addObject("PartDesign::Body", "Body008")

# Sketch on XY plane
sketch9 = body9.newObject("Sketcher::SketchObject", "Sketch008")
sketch9.AttachmentSupport = (doc.getObject("XY_Plane008"), [""])
sketch9.MapMode = "FlatFace"
sketch9.addGeometry([
    Part.ArcOfCircle(Part.Circle(App.Vector(-11.49635, 27.972883, 0), App.Vector(0, 0, 1), 25.5), math.radians(27.053275), math.radians(35.872719)),
    Part.LineSegment(App.Vector(11.213542, 39.570762, 0), App.Vector(15.666462, 41.844856, 0)),
    Part.ArcOfCircle(Part.Circle(App.Vector(-11.49635, 27.972883, 0), App.Vector(0, 0, 1), 30.5), math.radians(27.053275), math.radians(35.872719)),
    Part.LineSegment(App.Vector(13.218433, 45.845474, 0), App.Vector(9.166829, 42.915541, 0)),
], False)
sketch9.addConstraint([
    Sketcher.Constraint("Coincident", 0, 1, 1, 1),
    Sketcher.Constraint("Coincident", 1, 2, 2, 1),
    Sketcher.Constraint("Coincident", 2, 2, 3, 1),
    Sketcher.Constraint("Coincident", 3, 2, 0, 2),
    Sketcher.Constraint("Coincident", 2, 3, 0, 3),
    Sketcher.Constraint("Radius", 0, Q("25.5 mm")),
    Sketcher.Constraint("Radius", 2, Q("30.5 mm")),
    Sketcher.Constraint("DistanceX", 0, 3, -1, 1, Q("11.49635 mm")),
    Sketcher.Constraint("DistanceX", -1, 1, 0, 1, Q("11.213542 mm")),
    Sketcher.Constraint("DistanceY", -1, 1, 0, 1, Q("39.570762 mm")),
    Sketcher.Constraint("DistanceX", -1, 1, 1, 2, Q("15.666462 mm")),
    Sketcher.Constraint("DistanceX", -1, 1, 3, 2, Q("9.166829 mm")),
    Sketcher.Constraint("DistanceX", 2, 2, 1, 2, Q("2.448029 mm")),
])
pad9 = body9.newObject("PartDesign::Pad", "Pad008")
pad9.Profile = sketch9
pad9.Length = 1

doc.recompute()
